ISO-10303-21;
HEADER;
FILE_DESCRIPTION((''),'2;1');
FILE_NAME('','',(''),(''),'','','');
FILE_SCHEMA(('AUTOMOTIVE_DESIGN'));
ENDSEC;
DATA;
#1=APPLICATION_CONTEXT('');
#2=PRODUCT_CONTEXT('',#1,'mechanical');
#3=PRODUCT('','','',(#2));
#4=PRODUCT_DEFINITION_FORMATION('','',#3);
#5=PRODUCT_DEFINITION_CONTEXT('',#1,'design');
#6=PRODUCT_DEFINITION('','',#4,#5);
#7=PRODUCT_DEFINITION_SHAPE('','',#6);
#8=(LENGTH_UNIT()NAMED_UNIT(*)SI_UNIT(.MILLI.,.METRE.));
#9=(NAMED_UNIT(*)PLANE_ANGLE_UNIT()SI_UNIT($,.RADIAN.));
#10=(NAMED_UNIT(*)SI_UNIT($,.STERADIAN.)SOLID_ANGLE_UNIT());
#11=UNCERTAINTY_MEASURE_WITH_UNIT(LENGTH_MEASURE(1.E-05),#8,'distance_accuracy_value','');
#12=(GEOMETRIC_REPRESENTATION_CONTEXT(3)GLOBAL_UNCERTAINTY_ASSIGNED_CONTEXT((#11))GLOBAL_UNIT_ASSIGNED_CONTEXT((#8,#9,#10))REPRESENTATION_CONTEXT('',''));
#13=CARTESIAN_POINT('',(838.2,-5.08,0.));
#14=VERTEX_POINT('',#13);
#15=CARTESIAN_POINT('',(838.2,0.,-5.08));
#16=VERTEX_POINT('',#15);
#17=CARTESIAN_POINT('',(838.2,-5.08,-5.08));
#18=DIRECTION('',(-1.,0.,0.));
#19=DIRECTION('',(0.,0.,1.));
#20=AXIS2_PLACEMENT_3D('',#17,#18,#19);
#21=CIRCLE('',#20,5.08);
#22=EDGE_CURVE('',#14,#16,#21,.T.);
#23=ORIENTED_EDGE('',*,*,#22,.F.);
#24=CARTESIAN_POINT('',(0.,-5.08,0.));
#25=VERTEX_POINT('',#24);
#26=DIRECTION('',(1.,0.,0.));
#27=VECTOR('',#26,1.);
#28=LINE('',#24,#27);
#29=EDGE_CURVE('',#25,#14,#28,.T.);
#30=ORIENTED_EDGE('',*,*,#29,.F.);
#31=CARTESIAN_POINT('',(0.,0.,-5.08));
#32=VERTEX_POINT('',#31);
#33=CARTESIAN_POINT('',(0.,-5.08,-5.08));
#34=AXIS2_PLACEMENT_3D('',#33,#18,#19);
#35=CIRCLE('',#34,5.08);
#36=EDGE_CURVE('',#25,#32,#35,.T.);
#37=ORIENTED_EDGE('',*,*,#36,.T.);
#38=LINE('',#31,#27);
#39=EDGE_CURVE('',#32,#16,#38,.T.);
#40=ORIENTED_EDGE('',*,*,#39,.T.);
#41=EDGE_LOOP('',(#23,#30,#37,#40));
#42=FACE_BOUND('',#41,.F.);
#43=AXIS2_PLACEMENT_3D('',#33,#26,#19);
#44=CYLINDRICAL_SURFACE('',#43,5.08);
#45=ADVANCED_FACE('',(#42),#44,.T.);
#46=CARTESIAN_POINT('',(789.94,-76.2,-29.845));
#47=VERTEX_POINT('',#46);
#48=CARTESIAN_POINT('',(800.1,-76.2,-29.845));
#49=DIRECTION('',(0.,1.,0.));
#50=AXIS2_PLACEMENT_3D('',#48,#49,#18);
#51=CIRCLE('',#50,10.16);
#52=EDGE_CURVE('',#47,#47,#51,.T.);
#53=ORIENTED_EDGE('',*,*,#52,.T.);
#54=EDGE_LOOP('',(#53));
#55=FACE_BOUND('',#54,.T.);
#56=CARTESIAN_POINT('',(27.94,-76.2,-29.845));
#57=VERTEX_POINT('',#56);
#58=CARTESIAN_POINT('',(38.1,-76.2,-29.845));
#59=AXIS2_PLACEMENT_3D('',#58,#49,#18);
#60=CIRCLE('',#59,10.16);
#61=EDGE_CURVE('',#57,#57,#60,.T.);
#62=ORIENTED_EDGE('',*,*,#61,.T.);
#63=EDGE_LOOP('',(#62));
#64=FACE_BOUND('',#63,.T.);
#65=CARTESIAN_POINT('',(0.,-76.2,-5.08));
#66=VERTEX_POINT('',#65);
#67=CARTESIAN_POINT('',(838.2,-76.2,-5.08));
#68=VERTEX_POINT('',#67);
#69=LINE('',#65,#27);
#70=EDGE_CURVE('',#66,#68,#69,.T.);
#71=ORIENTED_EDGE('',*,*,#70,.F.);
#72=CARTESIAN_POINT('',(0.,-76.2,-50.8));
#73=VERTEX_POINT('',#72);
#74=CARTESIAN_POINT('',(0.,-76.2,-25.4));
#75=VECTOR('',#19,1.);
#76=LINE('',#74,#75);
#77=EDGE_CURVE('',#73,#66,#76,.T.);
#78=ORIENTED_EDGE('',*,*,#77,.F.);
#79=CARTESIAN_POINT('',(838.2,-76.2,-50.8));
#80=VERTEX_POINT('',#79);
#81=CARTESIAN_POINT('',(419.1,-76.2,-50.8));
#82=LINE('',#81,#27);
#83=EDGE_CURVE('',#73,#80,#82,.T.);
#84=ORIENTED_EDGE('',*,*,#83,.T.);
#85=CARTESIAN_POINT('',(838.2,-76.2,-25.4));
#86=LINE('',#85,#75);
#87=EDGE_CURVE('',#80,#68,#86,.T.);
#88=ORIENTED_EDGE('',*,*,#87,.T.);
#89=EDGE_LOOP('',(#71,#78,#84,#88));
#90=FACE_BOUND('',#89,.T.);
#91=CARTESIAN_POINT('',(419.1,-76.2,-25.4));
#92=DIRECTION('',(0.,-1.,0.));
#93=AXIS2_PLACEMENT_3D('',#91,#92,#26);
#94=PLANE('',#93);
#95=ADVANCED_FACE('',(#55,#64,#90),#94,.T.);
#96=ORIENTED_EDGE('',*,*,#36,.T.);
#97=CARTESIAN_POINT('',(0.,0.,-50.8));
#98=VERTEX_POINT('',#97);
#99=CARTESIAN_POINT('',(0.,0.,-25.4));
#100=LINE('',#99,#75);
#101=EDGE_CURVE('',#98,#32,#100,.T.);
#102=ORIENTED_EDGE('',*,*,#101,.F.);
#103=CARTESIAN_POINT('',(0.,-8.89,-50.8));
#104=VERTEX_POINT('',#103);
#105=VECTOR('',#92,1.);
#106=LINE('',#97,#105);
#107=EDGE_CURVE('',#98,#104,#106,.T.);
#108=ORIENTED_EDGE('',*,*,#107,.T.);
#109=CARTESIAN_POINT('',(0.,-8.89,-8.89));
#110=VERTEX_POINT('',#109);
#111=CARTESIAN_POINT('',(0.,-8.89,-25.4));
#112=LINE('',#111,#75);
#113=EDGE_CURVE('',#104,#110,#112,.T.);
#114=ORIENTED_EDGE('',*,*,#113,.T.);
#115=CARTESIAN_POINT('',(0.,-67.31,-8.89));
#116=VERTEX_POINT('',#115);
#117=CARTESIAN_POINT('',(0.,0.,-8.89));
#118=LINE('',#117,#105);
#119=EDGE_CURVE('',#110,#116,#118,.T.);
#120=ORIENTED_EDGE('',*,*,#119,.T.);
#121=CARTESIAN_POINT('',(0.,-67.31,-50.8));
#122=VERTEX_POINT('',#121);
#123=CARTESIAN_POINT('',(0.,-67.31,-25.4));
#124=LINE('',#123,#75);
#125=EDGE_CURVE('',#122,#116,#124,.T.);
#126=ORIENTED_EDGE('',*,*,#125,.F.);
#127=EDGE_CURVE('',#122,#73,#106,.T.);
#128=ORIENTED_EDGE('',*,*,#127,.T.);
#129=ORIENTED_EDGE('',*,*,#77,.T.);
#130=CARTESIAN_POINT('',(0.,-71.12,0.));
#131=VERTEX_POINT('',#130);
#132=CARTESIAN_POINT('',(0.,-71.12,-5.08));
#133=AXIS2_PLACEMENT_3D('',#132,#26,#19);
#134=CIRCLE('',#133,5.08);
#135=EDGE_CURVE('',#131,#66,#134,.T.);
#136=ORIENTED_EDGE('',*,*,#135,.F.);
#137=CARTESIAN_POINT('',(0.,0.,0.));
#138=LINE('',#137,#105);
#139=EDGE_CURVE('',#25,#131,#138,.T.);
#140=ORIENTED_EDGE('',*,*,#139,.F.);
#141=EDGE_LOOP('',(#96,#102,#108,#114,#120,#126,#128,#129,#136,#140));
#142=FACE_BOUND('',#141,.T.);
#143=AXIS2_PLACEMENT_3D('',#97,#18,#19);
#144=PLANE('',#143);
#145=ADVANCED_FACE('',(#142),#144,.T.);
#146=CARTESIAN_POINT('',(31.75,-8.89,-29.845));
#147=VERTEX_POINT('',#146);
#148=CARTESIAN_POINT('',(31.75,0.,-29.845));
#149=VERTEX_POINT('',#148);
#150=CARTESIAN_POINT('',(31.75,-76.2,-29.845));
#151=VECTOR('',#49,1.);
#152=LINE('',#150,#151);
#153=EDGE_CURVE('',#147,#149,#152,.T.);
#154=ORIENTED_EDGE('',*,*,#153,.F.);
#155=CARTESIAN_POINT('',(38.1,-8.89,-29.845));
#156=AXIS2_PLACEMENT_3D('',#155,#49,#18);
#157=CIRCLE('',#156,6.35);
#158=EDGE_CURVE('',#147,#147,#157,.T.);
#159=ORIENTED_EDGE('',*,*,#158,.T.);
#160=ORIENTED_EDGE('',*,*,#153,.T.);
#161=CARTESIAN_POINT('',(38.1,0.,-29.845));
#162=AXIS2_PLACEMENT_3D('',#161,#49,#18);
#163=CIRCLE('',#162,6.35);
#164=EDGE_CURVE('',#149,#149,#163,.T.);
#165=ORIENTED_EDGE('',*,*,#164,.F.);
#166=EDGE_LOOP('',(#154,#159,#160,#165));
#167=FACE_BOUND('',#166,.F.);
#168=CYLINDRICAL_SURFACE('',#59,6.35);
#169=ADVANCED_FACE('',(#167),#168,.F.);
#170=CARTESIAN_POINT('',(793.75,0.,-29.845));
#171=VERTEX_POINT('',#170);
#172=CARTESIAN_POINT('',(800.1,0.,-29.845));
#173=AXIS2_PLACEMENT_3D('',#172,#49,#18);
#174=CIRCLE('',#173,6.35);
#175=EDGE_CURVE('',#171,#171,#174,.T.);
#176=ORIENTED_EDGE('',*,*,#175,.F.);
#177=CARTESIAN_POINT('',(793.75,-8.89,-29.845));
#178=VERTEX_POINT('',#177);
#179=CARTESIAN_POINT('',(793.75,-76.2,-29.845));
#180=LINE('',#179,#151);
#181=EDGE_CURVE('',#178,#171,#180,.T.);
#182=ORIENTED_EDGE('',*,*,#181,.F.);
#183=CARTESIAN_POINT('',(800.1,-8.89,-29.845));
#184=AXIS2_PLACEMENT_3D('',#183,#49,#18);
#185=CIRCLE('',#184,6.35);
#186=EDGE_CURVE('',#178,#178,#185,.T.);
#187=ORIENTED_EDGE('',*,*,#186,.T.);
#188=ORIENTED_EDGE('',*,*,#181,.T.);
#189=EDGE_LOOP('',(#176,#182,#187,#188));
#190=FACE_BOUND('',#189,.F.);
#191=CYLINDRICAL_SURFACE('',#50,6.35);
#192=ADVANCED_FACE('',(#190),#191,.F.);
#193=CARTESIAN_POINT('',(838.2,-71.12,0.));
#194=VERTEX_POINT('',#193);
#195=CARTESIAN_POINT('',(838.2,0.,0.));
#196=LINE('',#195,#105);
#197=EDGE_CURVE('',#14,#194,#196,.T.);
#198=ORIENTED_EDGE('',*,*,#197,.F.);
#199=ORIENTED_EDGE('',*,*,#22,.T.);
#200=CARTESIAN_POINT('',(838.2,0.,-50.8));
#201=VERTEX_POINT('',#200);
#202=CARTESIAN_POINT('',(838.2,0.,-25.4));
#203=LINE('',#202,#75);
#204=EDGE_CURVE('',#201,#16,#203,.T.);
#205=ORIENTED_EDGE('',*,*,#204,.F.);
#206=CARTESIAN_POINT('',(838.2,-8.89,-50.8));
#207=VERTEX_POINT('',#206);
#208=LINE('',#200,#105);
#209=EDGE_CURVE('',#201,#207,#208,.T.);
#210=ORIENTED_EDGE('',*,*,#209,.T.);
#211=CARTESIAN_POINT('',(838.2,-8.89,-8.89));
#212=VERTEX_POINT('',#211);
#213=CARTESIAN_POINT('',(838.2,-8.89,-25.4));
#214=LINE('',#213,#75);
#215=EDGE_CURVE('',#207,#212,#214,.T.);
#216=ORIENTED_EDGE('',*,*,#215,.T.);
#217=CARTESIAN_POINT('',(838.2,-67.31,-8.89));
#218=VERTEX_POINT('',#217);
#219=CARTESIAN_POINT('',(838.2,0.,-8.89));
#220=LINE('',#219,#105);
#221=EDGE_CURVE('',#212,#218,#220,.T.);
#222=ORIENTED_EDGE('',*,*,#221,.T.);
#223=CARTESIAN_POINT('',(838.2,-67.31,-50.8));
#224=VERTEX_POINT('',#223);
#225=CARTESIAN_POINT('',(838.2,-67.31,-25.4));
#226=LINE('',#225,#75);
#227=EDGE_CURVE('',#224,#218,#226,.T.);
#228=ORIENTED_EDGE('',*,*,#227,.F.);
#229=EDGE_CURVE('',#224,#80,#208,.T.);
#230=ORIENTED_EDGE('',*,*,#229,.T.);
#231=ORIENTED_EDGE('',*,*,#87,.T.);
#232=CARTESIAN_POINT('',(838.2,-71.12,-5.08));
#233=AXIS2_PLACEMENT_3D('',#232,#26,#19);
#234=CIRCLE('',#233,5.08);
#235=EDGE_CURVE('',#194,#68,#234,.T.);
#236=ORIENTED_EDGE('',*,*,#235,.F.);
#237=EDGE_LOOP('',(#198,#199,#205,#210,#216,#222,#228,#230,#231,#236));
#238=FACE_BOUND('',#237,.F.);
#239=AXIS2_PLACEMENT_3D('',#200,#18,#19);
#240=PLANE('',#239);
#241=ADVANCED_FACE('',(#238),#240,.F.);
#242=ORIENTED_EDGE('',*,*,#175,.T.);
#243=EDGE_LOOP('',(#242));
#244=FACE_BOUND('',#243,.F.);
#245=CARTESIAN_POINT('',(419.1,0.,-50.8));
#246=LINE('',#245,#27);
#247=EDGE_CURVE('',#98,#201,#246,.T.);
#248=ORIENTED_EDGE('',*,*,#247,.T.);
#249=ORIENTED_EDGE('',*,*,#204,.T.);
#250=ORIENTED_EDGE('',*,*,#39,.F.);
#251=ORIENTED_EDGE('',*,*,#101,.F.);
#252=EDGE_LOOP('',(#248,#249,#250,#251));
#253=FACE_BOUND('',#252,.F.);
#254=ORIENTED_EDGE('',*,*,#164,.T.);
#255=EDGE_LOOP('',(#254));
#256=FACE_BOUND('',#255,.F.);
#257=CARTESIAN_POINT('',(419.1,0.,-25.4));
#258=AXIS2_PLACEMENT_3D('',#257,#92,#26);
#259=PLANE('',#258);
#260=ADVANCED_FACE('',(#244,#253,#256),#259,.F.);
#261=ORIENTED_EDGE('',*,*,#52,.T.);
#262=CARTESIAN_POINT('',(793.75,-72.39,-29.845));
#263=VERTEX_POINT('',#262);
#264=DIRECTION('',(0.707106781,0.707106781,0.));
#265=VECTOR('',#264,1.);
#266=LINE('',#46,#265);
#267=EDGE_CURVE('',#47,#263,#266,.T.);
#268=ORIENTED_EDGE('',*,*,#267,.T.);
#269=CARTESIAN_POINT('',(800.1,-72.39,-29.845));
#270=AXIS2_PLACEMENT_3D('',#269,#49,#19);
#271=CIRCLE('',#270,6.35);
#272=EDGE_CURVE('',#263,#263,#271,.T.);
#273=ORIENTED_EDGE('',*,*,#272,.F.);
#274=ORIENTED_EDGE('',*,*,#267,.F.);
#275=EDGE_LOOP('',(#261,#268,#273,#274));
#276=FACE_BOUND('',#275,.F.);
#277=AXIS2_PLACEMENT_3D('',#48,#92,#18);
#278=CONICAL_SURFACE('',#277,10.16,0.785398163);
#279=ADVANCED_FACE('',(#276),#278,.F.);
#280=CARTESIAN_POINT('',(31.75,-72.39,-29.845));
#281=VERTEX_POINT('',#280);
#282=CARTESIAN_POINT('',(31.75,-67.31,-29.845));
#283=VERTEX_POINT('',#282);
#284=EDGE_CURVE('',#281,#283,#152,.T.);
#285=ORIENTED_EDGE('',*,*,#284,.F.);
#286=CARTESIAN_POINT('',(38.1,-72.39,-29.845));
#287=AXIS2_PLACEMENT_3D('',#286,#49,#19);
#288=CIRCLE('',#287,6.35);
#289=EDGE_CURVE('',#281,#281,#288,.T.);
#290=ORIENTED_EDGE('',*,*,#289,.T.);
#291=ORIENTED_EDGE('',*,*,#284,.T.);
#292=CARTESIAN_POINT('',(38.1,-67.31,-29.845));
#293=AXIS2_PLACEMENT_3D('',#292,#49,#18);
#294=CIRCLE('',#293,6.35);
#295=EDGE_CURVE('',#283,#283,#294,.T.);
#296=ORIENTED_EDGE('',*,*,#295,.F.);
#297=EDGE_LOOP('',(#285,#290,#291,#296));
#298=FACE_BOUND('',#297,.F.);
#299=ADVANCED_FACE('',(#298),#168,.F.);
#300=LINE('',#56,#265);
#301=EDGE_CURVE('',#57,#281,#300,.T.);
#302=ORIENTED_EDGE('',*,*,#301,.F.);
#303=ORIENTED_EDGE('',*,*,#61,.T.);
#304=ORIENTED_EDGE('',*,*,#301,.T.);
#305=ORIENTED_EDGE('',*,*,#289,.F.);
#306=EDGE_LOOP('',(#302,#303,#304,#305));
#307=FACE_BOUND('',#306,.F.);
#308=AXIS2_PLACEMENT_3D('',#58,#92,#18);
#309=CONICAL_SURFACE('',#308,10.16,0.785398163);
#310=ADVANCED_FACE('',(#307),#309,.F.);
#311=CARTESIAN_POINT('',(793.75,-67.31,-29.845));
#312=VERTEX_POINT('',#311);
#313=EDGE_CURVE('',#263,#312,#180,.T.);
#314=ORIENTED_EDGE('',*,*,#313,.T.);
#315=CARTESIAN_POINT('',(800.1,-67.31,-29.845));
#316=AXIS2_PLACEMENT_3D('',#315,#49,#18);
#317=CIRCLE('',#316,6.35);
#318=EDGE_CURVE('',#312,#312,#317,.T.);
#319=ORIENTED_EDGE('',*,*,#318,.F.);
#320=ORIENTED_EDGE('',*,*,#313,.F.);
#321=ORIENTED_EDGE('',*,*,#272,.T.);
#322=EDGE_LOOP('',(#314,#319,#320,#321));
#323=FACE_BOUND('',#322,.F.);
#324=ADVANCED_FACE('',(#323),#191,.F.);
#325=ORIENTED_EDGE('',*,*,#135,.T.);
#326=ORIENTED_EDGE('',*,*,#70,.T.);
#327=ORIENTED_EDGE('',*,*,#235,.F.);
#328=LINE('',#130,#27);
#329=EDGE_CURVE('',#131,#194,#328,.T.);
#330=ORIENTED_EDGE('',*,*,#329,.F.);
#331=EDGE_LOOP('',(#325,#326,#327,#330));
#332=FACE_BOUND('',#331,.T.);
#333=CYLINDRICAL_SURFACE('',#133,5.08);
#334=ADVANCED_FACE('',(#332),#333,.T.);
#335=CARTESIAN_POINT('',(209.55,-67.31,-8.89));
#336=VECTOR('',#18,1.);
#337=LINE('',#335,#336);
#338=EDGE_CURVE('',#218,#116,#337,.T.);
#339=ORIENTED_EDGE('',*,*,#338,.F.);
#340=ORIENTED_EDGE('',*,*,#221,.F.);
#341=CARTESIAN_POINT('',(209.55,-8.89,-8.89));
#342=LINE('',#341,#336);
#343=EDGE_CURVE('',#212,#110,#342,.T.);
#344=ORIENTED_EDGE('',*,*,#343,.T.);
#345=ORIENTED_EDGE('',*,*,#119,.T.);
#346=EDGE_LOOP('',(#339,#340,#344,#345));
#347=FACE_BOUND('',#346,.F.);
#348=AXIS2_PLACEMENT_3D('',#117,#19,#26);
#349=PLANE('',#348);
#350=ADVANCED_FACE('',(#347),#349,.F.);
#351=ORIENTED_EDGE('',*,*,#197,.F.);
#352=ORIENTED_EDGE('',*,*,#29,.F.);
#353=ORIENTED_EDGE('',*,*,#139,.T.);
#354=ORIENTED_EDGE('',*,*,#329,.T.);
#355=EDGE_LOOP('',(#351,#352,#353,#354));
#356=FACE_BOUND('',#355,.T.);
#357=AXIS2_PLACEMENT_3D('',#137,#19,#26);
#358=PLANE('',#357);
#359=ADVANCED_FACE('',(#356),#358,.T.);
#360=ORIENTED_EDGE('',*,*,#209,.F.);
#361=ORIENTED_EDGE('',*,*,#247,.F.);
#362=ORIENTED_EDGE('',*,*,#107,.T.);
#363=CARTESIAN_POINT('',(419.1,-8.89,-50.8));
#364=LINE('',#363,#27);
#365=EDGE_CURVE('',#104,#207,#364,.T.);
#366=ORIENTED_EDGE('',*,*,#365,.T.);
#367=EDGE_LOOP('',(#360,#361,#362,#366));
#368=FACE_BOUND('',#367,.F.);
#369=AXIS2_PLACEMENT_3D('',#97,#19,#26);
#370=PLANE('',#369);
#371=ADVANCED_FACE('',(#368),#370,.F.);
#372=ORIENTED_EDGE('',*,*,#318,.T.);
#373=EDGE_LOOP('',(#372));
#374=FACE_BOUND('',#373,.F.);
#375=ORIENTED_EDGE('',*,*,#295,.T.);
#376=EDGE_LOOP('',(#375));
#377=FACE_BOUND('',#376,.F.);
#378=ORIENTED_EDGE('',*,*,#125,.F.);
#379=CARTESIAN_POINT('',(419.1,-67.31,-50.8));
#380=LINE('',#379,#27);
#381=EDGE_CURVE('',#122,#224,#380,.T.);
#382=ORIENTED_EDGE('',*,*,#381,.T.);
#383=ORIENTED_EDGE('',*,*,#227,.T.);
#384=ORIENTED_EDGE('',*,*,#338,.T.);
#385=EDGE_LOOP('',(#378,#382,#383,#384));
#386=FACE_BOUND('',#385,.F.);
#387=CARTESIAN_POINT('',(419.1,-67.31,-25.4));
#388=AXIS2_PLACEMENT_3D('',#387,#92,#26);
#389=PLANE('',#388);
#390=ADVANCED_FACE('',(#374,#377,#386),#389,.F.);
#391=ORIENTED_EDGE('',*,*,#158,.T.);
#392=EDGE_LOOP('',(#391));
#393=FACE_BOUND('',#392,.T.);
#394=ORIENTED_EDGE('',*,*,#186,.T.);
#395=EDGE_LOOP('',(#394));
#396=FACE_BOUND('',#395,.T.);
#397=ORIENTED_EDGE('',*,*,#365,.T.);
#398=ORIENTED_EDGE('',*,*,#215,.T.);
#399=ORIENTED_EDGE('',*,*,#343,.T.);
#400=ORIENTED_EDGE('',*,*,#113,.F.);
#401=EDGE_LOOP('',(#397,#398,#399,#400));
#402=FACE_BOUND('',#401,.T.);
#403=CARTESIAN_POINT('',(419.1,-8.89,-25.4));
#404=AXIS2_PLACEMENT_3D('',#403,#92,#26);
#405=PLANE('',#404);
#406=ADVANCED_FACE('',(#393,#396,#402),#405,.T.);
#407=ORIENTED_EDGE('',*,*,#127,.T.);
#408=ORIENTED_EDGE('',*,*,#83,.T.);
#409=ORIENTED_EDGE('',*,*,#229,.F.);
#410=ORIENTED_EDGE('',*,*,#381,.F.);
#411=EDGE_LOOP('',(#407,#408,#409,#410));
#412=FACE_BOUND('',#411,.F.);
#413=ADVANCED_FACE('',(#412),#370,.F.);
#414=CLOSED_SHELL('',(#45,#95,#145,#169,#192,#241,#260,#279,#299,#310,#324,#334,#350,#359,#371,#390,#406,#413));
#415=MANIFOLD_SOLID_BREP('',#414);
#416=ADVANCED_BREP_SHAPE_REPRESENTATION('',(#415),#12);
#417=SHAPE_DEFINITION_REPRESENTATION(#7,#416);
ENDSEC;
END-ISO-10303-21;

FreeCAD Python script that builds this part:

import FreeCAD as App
import Part
import Sketcher

V = App.Vector
Q = App.Units.Quantity


def edges_at(feature, points):
    """Names of the edges that pass closest to the given points."""
    edges = feature.Shape.Edges
    near = lambda p: min(range(len(edges)), key=lambda i: edges[i].distToShape(Part.Vertex(*p))[0])
    return sorted({f"Edge{near(p) + 1}" for p in points})


def faces_at(feature, points):
    """Names of the faces that lie closest to the given points."""
    faces = feature.Shape.Faces
    near = lambda p: min(range(len(faces)), key=lambda i: faces[i].distToShape(Part.Vertex(*p))[0])
    return sorted({f"Face{near(p) + 1}" for p in points})


def add_polygon(sketch, points):
    """Adds a closed chain of lines whose ends are joined by coincident constraints."""
    first, n = sketch.GeometryCount, len(points)
    for a, b in zip(points, points[1:] + points[:1]):
        sketch.addGeometry(Part.LineSegment(App.Vector(*a, 0), App.Vector(*b, 0)), False)
    for i in range(n):
        sketch.addConstraint(Sketcher.Constraint("Coincident", first + i, 2, first + (i + 1) % n, 1))

doc = App.newDocument("Part")
body = doc.addObject("PartDesign::Body", "Body")

sketch1 = body.newObject("Sketcher::SketchObject", "Sketch")
sketch1.AttachmentSupport = (doc.getObject("XZ_Plane"), [""])
sketch1.MapMode = "FlatFace"
add_polygon(sketch1, [(0, 0), (0, -51), (838, -51), (838, 0)])
sketch1.addConstraint([
    Sketcher.Constraint("Vertical", 0),
    Sketcher.Constraint("Horizontal", 1),
    Sketcher.Constraint("Vertical", 2),
    Sketcher.Constraint("Horizontal", 3),
    Sketcher.Constraint("Coincident", 3, 2, -1, 1),
    Sketcher.Constraint("DistanceX", 1, 1, 1, 2, Q("33 in")),
    Sketcher.Constraint("DistanceY", 0, 2, 0, 1, Q("2 in")),
])
pad1 = body.newObject("PartDesign::Pad", "Pad")
pad1.Profile = sketch1
pad1.Length = Q("3 in")
doc.recompute()

thickness = body.newObject("PartDesign::Thickness", "Thickness")
thickness.Base = (pad1, faces_at(pad1, [(838.2, -38.1, -25.4), (419.1, -38.1, -50.8), (0, -38.1, -25.4)]))
thickness.Value = Q("0.35 in")
thickness.Reversed = True
thickness.Join = "Arc"

sketch2 = body.newObject("Sketcher::SketchObject", "Sketch001")
sketch2.AttachmentSupport = (doc.getObject("XZ_Plane"), [""])
sketch2.MapMode = "FlatFace"
sketch2.AttachmentOffset = App.Placement(V(0, 0, 3 * 25.4), App.Rotation())
sketch2.addGeometry([
    Part.Circle(V(38, -30, 0), V(0, 0, 1), 6),
    Part.Circle(V(800, -30, 0), V(0, 0, 1), 6),
], False)
sketch2.addConstraint([
    Sketcher.Constraint("Equal", 0, 1),
    Sketcher.Constraint("Horizontal", 0, 3, 1, 3),
    Sketcher.Constraint("Diameter", 0, Q("0.5 in")),
    Sketcher.Constraint("DistanceX", 0, 3, 1, 3, Q("30 in")),
    Sketcher.Constraint("DistanceX", -1, 1, 0, 3, Q("1.5 in")),
    Sketcher.Constraint("DistanceY", 0, 3, -1, 1, Q("1.175 in")),
])
doc.recompute()
hole = body.newObject("PartDesign::Hole", "Hole")
hole.Profile = sketch2
hole.ThreadType = "None"
hole.Diameter = Q("0.5 in")
hole.DepthType = "ThroughAll"
hole.HoleCutType = "Countersink"
hole.HoleCutDiameter = Q("0.8 in")
hole.HoleCutCountersinkAngle = 90
doc.recompute()

fillet = body.newObject("PartDesign::Fillet", "Fillet")
fillet.Base = (hole, edges_at(hole, [(419.1, -76.2, 0), (419.1, 0, 0)]))
fillet.Radius = Q("0.2 in")

doc.recompute()
